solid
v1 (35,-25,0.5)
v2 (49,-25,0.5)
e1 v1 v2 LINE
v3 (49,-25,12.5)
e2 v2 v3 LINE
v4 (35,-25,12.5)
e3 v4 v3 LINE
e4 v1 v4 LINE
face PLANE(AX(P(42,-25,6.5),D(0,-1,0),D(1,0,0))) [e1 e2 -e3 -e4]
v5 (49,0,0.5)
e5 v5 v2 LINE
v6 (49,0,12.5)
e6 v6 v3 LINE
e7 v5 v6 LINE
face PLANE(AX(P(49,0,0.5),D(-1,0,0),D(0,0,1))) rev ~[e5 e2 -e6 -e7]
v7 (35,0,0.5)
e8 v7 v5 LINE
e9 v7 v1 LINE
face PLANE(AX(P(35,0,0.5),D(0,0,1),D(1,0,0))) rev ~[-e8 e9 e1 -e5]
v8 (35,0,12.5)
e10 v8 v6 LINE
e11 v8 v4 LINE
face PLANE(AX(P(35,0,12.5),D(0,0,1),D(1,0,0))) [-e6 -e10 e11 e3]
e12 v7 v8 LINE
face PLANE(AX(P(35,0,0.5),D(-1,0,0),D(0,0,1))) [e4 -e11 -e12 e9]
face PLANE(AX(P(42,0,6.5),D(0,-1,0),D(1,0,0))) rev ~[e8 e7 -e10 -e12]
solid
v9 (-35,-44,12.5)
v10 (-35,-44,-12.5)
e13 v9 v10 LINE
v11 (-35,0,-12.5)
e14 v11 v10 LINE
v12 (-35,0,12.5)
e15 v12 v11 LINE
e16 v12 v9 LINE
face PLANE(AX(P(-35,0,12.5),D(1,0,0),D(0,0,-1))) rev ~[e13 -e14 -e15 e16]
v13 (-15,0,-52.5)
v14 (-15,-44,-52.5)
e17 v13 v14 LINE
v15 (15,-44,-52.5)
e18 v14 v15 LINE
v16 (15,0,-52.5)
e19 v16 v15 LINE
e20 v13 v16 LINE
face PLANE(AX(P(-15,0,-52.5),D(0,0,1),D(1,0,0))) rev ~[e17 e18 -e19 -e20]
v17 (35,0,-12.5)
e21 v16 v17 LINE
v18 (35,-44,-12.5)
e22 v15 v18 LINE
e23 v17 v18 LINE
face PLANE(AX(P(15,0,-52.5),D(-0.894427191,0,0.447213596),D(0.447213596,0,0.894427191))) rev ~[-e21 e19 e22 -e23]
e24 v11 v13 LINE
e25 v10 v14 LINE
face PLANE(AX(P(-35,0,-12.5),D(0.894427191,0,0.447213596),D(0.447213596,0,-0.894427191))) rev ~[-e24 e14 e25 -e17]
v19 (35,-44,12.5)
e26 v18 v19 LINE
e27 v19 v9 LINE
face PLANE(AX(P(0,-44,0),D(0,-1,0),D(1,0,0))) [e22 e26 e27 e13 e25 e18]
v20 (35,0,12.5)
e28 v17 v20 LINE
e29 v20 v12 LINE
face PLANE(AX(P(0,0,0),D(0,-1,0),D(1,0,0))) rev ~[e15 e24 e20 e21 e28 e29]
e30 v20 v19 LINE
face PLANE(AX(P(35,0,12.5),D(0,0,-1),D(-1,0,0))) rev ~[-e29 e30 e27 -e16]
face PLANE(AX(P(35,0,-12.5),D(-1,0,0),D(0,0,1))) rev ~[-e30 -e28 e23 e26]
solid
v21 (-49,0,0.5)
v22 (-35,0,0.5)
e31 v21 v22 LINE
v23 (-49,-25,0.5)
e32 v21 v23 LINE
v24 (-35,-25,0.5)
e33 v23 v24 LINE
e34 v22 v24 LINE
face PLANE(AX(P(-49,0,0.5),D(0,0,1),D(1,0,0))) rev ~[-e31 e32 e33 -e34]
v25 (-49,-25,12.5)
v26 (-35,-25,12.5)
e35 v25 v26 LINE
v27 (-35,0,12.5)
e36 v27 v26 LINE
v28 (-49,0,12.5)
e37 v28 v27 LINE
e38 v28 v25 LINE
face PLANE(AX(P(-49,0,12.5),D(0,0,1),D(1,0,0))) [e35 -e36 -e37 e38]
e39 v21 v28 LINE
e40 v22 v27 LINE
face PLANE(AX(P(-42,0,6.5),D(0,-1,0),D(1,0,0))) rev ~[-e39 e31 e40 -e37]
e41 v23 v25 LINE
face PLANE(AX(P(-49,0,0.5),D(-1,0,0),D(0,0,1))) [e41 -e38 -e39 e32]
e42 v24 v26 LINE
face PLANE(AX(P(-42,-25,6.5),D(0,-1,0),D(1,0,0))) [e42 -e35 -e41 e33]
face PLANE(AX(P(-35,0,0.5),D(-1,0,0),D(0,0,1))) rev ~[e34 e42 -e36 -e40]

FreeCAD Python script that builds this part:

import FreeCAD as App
import Part
import Sketcher
Q = App.Units.Quantity

doc = App.newDocument("Part")
params = doc.addObject("Spreadsheet::Sheet", "Params")
for row, (alias, value) in enumerate([
    ("sketch1_width", "14 mm"),
    ("sketch1_height", "12 mm"),
    ("pad1_length", "25 mm"),
    ("sketch2_width", "70 mm"),
    ("sketch2_width2", "30 mm"),
    ("sketch2_height", "25 mm"),
    ("pad2_length", "44 mm"),
], start=1):
    params.set(f"A{row}", alias)
    params.set(f"B{row}", "=" + value)
    params.setAlias(f"B{row}", alias)

body = doc.addObject("PartDesign::Body", "Body")
body.AllowCompound = True

# Sketch on XZ plane
sketch1 = body.newObject("Sketcher::SketchObject", "Sketch")
sketch1.AttachmentSupport = (doc.getObject("XZ_Plane"), [""])
sketch1.MapMode = "FlatFace"
sketch1.addGeometry([
    Part.LineSegment(App.Vector(-49, 12, 0), App.Vector(-49, 0, 0)),  # 0
    Part.LineSegment(App.Vector(-49, 0, 0), App.Vector(-35, 0, 0)),  # 1
    Part.LineSegment(App.Vector(-35, 0, 0), App.Vector(-35, 12, 0)),  # 2
    Part.LineSegment(App.Vector(-35, 12, 0), App.Vector(-49, 12, 0)),  # 3
    Part.LineSegment(App.Vector(35, 12, 0), App.Vector(35, 0, 0)),  # 4
    Part.LineSegment(App.Vector(35, 0, 0), App.Vector(49, 0, 0)),  # 5
    Part.LineSegment(App.Vector(49, 0, 0), App.Vector(49, 12, 0)),  # 6
    Part.LineSegment(App.Vector(49, 12, 0), App.Vector(35, 12, 0)),  # 7
], False)
sketch1.addConstraint([
    Sketcher.Constraint("Coincident", 0, 2, 1, 1),
    Sketcher.Constraint("Coincident", 1, 2, 2, 1),
    Sketcher.Constraint("Coincident", 2, 2, 3, 1),
    Sketcher.Constraint("Coincident", 3, 2, 0, 1),
    Sketcher.Constraint("Coincident", 4, 2, 5, 1),
    Sketcher.Constraint("Coincident", 5, 2, 6, 1),
    Sketcher.Constraint("Coincident", 6, 2, 7, 1),
    Sketcher.Constraint("Coincident", 7, 2, 4, 1),
    Sketcher.Constraint("Vertical", 0),
    Sketcher.Constraint("Horizontal", 1),
    Sketcher.Constraint("Vertical", 2),
    Sketcher.Constraint("Horizontal", 3),
    Sketcher.Constraint("Vertical", 4),
    Sketcher.Constraint("Horizontal", 5),
    Sketcher.Constraint("Vertical", 6),
    Sketcher.Constraint("Horizontal", 7),
    Sketcher.Constraint("Symmetric", 1, 2, 4, 2, -2),
    Sketcher.Constraint("Symmetric", 3, 2, 6, 2, -2),
    Sketcher.Constraint("DistanceX", 1, 1, 1, 2, Q("14 mm")),
    Sketcher.Constraint("DistanceY", 0, 2, 0, 1, Q("12 mm")),
    Sketcher.Constraint("DistanceX", 0, 2, -1, 1, Q("49 mm")),
    Sketcher.Constraint("DistanceY", -1, 1, 0, 2, Q("0.5 mm")),
])
sketch1.setExpression("Constraints[18]", "Params.sketch1_width")
sketch1.setExpression("Constraints[19]", "Params.sketch1_height")
pad1 = body.newObject("PartDesign::Pad", "Pad")
pad1.Profile = sketch1
pad1.setExpression("Length", "Params.pad1_length")
body2 = doc.addObject("PartDesign::Body", "Body001")

# Sketch on XZ plane
sketch2 = body2.newObject("Sketcher::SketchObject", "Sketch001")
sketch2.AttachmentSupport = (doc.getObject("XZ_Plane001"), [""])
sketch2.MapMode = "FlatFace"
sketch2.addGeometry([
    Part.LineSegment(App.Vector(35, -12, 0), App.Vector(35, 12, 0)),  # 0
    Part.LineSegment(App.Vector(35, 12, 0), App.Vector(-35, 12, 0)),  # 1
    Part.LineSegment(App.Vector(-35, 12, 0), App.Vector(-35, -12, 0)),  # 2
    Part.LineSegment(App.Vector(-35, -12, 0), App.Vector(-15, -52, 0)),  # 3
    Part.LineSegment(App.Vector(-15, -52, 0), App.Vector(15, -52, 0)),  # 4
    Part.LineSegment(App.Vector(15, -52, 0), App.Vector(35, -12, 0)),  # 5
], False)
sketch2.addConstraint([
    Sketcher.Constraint("Coincident", 0, 2, 1, 1),
    Sketcher.Constraint("Coincident", 1, 2, 2, 1),
    Sketcher.Constraint("Coincident", 2, 2, 3, 1),
    Sketcher.Constraint("Coincident", 3, 2, 4, 1),
    Sketcher.Constraint("Coincident", 4, 2, 5, 1),
    Sketcher.Constraint("Coincident", 5, 2, 0, 1),
    Sketcher.Constraint("Vertical", 0),
    Sketcher.Constraint("Horizontal", 1),
    Sketcher.Constraint("Vertical", 2),
    Sketcher.Constraint("Horizontal", 4),
    Sketcher.Constraint("Symmetric", 0, 2, 2, 2, -1, 1),
    Sketcher.Constraint("Horizontal", 2, 2, 5, 2),
    Sketcher.Constraint("Equal", 3, 5),
    Sketcher.Constraint("DistanceX", 1, 2, 1, 1, Q("70 mm")),
    Sketcher.Constraint("DistanceX", 4, 1, 4, 2, Q("30 mm")),
    Sketcher.Constraint("DistanceY", 0, 1, 0, 2, Q("25 mm")),
    Sketcher.Constraint("DistanceY", 3, 2, 2, 2, Q("40 mm")),
])
sketch2.setExpression("Constraints[13]", "Params.sketch2_width")
sketch2.setExpression("Constraints[14]", "Params.sketch2_width2")
sketch2.setExpression("Constraints[15]", "Params.sketch2_height")
pad2 = body2.newObject("PartDesign::Pad", "Pad001")
pad2.Profile = sketch2
pad2.setExpression("Length", "Params.pad2_length")

doc.recompute()
